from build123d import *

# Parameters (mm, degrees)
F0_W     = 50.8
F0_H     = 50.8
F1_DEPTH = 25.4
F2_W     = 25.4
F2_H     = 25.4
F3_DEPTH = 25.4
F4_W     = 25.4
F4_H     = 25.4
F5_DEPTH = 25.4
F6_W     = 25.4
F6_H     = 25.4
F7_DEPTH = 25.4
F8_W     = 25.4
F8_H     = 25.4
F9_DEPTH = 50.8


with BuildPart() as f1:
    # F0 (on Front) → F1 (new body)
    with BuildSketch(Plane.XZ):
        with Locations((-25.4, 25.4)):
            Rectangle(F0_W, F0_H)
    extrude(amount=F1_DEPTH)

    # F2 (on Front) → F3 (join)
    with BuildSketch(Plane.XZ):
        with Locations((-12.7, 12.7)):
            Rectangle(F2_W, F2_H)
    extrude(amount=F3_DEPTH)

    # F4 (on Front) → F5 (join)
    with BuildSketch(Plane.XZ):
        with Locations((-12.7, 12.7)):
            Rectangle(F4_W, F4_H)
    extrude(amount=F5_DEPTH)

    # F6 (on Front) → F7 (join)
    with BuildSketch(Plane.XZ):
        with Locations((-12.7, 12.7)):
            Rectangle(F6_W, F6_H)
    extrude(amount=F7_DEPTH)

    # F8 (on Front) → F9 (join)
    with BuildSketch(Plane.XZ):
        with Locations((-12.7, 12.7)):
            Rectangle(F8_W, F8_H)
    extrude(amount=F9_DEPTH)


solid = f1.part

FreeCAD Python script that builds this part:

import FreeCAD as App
import Part
import Sketcher

V = App.Vector
Q = App.Units.Quantity

doc = App.newDocument("Part")
body = doc.addObject("PartDesign::Body", "Body")

sketch1 = body.newObject("Sketcher::SketchObject", "Sketch")
sketch1.AttachmentSupport = (doc.getObject("XZ_Plane"), [""])
sketch1.MapMode = "FlatFace"
sketch1.addGeometry(Part.LineSegment(V(-51, 51, 0), V(-51, 0, 0)), False)
sketch1.addGeometry(Part.LineSegment(V(-51, 0, 0), V(0, 0, 0)), False)
sketch1.addGeometry(Part.LineSegment(V(0, 0, 0), V(0, 51, 0)), False)
sketch1.addGeometry(Part.LineSegment(V(0, 51, 0), V(-51, 51, 0)), False)
sketch1.addConstraint(Sketcher.Constraint("Coincident", 0, 2, 1, 1))
sketch1.addConstraint(Sketcher.Constraint("Coincident", 1, 2, 2, 1))
sketch1.addConstraint(Sketcher.Constraint("Coincident", 2, 2, 3, 1))
sketch1.addConstraint(Sketcher.Constraint("Coincident", 3, 2, 0, 1))
sketch1.addConstraint(Sketcher.Constraint("Vertical", 0))
sketch1.addConstraint(Sketcher.Constraint("Horizontal", 1))
sketch1.addConstraint(Sketcher.Constraint("Vertical", 2))
sketch1.addConstraint(Sketcher.Constraint("Horizontal", 3))
sketch1.addConstraint(Sketcher.Constraint("Coincident", 1, 2, -1, 1))
sketch1.addConstraint(Sketcher.Constraint("Equal", 3, 0))
sketch1.addConstraint(Sketcher.Constraint("DistanceX", 1, 1, 1, 2, Q("2 in")))
pad1 = body.newObject("PartDesign::Pad", "Pad")
pad1.Profile = sketch1
pad1.Length = Q("1 in")

sketch2 = body.newObject("Sketcher::SketchObject", "Sketch001")
sketch2.AttachmentSupport = (doc.getObject("XZ_Plane"), [""])
sketch2.MapMode = "FlatFace"
sketch2.addGeometry(Part.LineSegment(V(-25, 25, 0), V(-25, 0, 0)), False)
sketch2.addGeometry(Part.LineSegment(V(-25, 0, 0), V(0, 0, 0)), False)
sketch2.addGeometry(Part.LineSegment(V(0, 0, 0), V(0, 25, 0)), False)
sketch2.addGeometry(Part.LineSegment(V(0, 25, 0), V(-25, 25, 0)), False)
sketch2.addConstraint(Sketcher.Constraint("Coincident", 0, 2, 1, 1))
sketch2.addConstraint(Sketcher.Constraint("Coincident", 1, 2, 2, 1))
sketch2.addConstraint(Sketcher.Constraint("Coincident", 2, 2, 3, 1))
sketch2.addConstraint(Sketcher.Constraint("Coincident", 3, 2, 0, 1))
sketch2.addConstraint(Sketcher.Constraint("Vertical", 0))
sketch2.addConstraint(Sketcher.Constraint("Horizontal", 1))
sketch2.addConstraint(Sketcher.Constraint("Vertical", 2))
sketch2.addConstraint(Sketcher.Constraint("Horizontal", 3))
sketch2.addConstraint(Sketcher.Constraint("Coincident", 1, 2, -1, 1))
sketch2.addConstraint(Sketcher.Constraint("Equal", 3, 0))
sketch2.addConstraint(Sketcher.Constraint("DistanceX", 1, 1, 1, 2, Q("1 in")))
pad2 = body.newObject("PartDesign::Pad", "Pad001")
pad2.Profile = sketch2
pad2.Length = Q("1 in")

sketch3 = body.newObject("Sketcher::SketchObject", "Sketch002")
sketch3.AttachmentSupport = (doc.getObject("XZ_Plane"), [""])
sketch3.MapMode = "FlatFace"
sketch3.addGeometry(Part.LineSegment(V(-25, 25, 0), V(-25, 0, 0)), False)
sketch3.addGeometry(Part.LineSegment(V(-25, 0, 0), V(0, 0, 0)), False)
sketch3.addGeometry(Part.LineSegment(V(0, 0, 0), V(0, 25, 0)), False)
sketch3.addGeometry(Part.LineSegment(V(0, 25, 0), V(-25, 25, 0)), False)
sketch3.addConstraint(Sketcher.Constraint("Coincident", 0, 2, 1, 1))
sketch3.addConstraint(Sketcher.Constraint("Coincident", 1, 2, 2, 1))
sketch3.addConstraint(Sketcher.Constraint("Coincident", 2, 2, 3, 1))
sketch3.addConstraint(Sketcher.Constraint("Coincident", 3, 2, 0, 1))
sketch3.addConstraint(Sketcher.Constraint("Vertical", 0))
sketch3.addConstraint(Sketcher.Constraint("Horizontal", 1))
sketch3.addConstraint(Sketcher.Constraint("Vertical", 2))
sketch3.addConstraint(Sketcher.Constraint("Horizontal", 3))
sketch3.addConstraint(Sketcher.Constraint("Coincident", 1, 2, -1, 1))
sketch3.addConstraint(Sketcher.Constraint("Equal", 3, 0))
sketch3.addConstraint(Sketcher.Constraint("DistanceX", 1, 1, 1, 2, Q("1 in")))
pad3 = body.newObject("PartDesign::Pad", "Pad002")
pad3.Profile = sketch3
pad3.Length = Q("1 in")

sketch4 = body.newObject("Sketcher::SketchObject", "Sketch003")
sketch4.AttachmentSupport = (doc.getObject("XZ_Plane"), [""])
sketch4.MapMode = "FlatFace"
sketch4.addGeometry(Part.LineSegment(V(-25, 25, 0), V(-25, 0, 0)), False)
sketch4.addGeometry(Part.LineSegment(V(-25, 0, 0), V(0, 0, 0)), False)
sketch4.addGeometry(Part.LineSegment(V(0, 0, 0), V(0, 25, 0)), False)
sketch4.addGeometry(Part.LineSegment(V(0, 25, 0), V(-25, 25, 0)), False)
sketch4.addConstraint(Sketcher.Constraint("Coincident", 0, 2, 1, 1))
sketch4.addConstraint(Sketcher.Constraint("Coincident", 1, 2, 2, 1))
sketch4.addConstraint(Sketcher.Constraint("Coincident", 2, 2, 3, 1))
sketch4.addConstraint(Sketcher.Constraint("Coincident", 3, 2, 0, 1))
sketch4.addConstraint(Sketcher.Constraint("Vertical", 0))
sketch4.addConstraint(Sketcher.Constraint("Horizontal", 1))
sketch4.addConstraint(Sketcher.Constraint("Vertical", 2))
sketch4.addConstraint(Sketcher.Constraint("Horizontal", 3))
sketch4.addConstraint(Sketcher.Constraint("Coincident", 1, 2, -1, 1))
sketch4.addConstraint(Sketcher.Constraint("Equal", 3, 0))
sketch4.addConstraint(Sketcher.Constraint("DistanceX", 1, 1, 1, 2, Q("1 in")))
pad4 = body.newObject("PartDesign::Pad", "Pad003")
pad4.Profile = sketch4
pad4.Length = Q("1 in")

sketch5 = body.newObject("Sketcher::SketchObject", "Sketch004")
sketch5.AttachmentSupport = (doc.getObject("XZ_Plane"), [""])
sketch5.MapMode = "FlatFace"
sketch5.addGeometry(Part.LineSegment(V(-25, 25, 0), V(-25, 0, 0)), False)
sketch5.addGeometry(Part.LineSegment(V(-25, 0, 0), V(0, 0, 0)), False)
sketch5.addGeometry(Part.LineSegment(V(0, 0, 0), V(0, 25, 0)), False)
sketch5.addGeometry(Part.LineSegment(V(0, 25, 0), V(-25, 25, 0)), False)
sketch5.addConstraint(Sketcher.Constraint("Coincident", 0, 2, 1, 1))
sketch5.addConstraint(Sketcher.Constraint("Coincident", 1, 2, 2, 1))
sketch5.addConstraint(Sketcher.Constraint("Coincident", 2, 2, 3, 1))
sketch5.addConstraint(Sketcher.Constraint("Coincident", 3, 2, 0, 1))
sketch5.addConstraint(Sketcher.Constraint("Vertical", 0))
sketch5.addConstraint(Sketcher.Constraint("Horizontal", 1))
sketch5.addConstraint(Sketcher.Constraint("Vertical", 2))
sketch5.addConstraint(Sketcher.Constraint("Horizontal", 3))
sketch5.addConstraint(Sketcher.Constraint("Coincident", 1, 2, -1, 1))
sketch5.addConstraint(Sketcher.Constraint("Equal", 3, 0))
sketch5.addConstraint(Sketcher.Constraint("DistanceX", 1, 1, 1, 2, Q("1 in")))
pad5 = body.newObject("PartDesign::Pad", "Pad004")
pad5.Profile = sketch5
pad5.Length = Q("2 in")

doc.recompute()
